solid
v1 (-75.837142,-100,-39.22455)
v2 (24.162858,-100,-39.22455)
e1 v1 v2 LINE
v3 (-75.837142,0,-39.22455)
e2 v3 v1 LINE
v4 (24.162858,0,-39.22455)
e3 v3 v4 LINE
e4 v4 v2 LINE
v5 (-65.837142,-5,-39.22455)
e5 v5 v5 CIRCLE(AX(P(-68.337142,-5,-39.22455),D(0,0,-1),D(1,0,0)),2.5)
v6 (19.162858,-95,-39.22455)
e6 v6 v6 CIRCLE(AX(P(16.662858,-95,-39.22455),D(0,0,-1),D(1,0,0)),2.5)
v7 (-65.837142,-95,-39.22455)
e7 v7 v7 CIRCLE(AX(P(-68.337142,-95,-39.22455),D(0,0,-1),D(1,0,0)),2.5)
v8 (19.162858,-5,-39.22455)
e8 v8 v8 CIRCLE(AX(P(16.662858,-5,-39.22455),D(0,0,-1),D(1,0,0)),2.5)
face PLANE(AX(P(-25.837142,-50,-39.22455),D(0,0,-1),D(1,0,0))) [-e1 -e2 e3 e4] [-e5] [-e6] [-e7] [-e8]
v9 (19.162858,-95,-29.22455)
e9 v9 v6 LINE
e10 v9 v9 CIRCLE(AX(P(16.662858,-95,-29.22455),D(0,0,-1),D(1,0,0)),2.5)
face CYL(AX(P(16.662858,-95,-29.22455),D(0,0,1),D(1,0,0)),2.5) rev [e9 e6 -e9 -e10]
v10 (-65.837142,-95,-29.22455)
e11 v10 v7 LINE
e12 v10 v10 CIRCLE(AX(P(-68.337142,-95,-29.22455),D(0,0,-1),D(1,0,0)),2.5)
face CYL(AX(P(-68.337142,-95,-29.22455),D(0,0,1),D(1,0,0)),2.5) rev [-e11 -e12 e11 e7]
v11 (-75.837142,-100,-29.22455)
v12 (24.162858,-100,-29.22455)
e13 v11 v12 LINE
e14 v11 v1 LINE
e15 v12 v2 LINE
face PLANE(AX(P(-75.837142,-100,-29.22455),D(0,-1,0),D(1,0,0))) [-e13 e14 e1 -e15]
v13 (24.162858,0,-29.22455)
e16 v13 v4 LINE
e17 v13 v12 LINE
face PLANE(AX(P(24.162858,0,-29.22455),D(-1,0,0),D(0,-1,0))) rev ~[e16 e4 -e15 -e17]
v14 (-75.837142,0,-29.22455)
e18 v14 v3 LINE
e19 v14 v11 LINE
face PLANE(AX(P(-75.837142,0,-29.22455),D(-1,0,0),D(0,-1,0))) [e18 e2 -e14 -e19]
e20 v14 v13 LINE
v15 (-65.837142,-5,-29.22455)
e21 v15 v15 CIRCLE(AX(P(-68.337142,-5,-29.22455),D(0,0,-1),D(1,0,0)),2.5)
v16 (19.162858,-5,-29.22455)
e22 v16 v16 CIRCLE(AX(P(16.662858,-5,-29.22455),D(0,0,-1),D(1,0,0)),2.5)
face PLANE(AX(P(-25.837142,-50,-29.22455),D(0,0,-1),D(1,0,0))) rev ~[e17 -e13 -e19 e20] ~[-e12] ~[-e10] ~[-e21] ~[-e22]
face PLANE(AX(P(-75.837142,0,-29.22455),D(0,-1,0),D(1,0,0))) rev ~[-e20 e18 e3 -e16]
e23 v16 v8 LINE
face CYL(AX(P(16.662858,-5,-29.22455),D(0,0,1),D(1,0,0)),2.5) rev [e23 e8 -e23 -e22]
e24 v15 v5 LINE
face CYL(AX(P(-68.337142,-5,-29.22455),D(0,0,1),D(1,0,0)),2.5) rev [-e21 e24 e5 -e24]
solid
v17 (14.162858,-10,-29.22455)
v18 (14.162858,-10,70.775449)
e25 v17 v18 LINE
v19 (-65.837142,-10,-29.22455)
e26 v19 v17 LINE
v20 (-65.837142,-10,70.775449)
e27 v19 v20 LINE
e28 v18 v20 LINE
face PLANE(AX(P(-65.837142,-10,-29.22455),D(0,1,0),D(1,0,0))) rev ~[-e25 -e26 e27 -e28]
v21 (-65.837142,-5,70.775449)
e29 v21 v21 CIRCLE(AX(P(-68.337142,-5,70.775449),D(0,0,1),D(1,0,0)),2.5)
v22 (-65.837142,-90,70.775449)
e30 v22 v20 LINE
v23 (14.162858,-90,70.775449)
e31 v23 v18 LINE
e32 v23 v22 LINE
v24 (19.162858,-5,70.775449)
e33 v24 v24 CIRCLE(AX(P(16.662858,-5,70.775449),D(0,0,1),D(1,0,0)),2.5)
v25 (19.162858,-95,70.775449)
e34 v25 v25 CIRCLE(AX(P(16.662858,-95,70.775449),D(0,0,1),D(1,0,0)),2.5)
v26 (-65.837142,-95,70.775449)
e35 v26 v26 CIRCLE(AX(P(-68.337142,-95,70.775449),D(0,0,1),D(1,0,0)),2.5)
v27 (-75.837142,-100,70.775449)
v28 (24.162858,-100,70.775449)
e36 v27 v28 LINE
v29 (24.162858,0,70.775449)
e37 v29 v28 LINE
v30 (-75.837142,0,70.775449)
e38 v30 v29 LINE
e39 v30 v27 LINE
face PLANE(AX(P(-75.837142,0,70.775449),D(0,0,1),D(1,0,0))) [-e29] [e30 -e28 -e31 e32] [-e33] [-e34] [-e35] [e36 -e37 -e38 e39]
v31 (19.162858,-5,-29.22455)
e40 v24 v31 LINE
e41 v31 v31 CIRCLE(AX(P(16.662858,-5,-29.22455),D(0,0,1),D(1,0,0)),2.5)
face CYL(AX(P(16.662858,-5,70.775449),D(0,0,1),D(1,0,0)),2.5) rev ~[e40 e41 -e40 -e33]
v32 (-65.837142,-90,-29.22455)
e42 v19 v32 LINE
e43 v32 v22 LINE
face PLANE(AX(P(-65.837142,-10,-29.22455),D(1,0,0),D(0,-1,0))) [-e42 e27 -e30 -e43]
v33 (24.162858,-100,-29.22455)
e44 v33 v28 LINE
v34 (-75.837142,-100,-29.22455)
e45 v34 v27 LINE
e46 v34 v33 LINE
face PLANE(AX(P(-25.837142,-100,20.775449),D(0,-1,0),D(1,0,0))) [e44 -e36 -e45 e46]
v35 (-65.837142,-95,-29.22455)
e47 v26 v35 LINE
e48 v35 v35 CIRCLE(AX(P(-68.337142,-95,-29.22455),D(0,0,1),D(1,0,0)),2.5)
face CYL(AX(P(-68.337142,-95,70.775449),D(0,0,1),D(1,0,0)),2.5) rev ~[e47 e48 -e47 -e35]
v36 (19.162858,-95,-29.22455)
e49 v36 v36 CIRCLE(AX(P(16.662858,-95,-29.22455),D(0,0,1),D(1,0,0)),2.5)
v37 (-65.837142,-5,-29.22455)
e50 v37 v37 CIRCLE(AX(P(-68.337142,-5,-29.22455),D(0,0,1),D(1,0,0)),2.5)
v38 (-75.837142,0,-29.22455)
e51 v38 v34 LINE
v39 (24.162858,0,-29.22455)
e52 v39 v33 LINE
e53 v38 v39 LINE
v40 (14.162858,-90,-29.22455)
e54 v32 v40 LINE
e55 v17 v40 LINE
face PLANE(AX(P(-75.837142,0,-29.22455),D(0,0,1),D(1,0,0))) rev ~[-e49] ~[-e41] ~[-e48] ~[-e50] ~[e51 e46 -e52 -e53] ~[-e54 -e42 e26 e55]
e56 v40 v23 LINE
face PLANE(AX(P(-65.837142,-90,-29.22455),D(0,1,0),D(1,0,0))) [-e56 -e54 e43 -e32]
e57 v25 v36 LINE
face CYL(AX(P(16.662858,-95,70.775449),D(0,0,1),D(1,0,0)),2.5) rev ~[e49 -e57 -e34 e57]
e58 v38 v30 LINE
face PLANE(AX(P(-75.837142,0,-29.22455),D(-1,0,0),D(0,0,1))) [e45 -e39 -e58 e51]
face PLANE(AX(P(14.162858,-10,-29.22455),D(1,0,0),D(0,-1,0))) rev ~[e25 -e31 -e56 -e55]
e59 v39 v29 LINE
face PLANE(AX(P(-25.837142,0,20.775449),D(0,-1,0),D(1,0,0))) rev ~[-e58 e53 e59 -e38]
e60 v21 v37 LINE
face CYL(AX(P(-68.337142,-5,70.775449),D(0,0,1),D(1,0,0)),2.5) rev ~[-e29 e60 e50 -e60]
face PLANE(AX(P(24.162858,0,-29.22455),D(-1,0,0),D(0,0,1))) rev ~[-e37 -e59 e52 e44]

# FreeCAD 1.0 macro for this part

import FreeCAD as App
import Part
import Sketcher

V = App.Vector

doc = App.newDocument("Part")
body = doc.addObject("PartDesign::Body", "Body")

sketch1 = body.newObject("Sketcher::SketchObject", "Sketch")
sketch1.AttachmentSupport = (doc.getObject("XZ_Plane"), [""])
sketch1.MapMode = "FlatFace"
sketch1.addGeometry(Part.LineSegment(V(-75.837142, 70.775449, 0), V(-75.837142, -29.22455, 0)), False)
sketch1.addGeometry(Part.LineSegment(V(-75.837142, -29.22455, 0), V(24.162858, -29.22455, 0)), False)
sketch1.addGeometry(Part.LineSegment(V(24.162858, -29.22455, 0), V(24.162858, 70.775449, 0)), False)
sketch1.addGeometry(Part.LineSegment(V(24.162858, 70.775449, 0), V(-75.837142, 70.775449, 0)), False)
sketch1.addConstraint(Sketcher.Constraint("Coincident", 0, 2, 1, 1))
sketch1.addConstraint(Sketcher.Constraint("Coincident", 1, 2, 2, 1))
sketch1.addConstraint(Sketcher.Constraint("Coincident", 2, 2, 3, 1))
sketch1.addConstraint(Sketcher.Constraint("Coincident", 3, 2, 0, 1))
sketch1.addConstraint(Sketcher.Constraint("Vertical", 0))
sketch1.addConstraint(Sketcher.Constraint("Horizontal", 1))
sketch1.addConstraint(Sketcher.Constraint("Vertical", 2))
sketch1.addConstraint(Sketcher.Constraint("Horizontal", 3))
sketch1.addConstraint(Sketcher.Constraint("Equal", 3, 0))
sketch1.addConstraint(Sketcher.Constraint("DistanceX", 1, 1, 1, 2, 100.0))
sketch1.addConstraint(Sketcher.Constraint("DistanceY", 0, 2, -1, 1, 29.22455))
sketch1.addConstraint(Sketcher.Constraint("DistanceX", 0, 2, -1, 1, 75.837142))
pad1 = body.newObject("PartDesign::Pad", "Pad")
pad1.Profile = sketch1
pad1.Length = 100

sketch2 = body.newObject("Sketcher::SketchObject", "Sketch001")
sketch2.AttachmentSupport = (doc.getObject("XY_Plane"), [""])
sketch2.MapMode = "FlatFace"
sketch2.AttachmentOffset = App.Placement(V(0, 0, -29.22455), App.Rotation())
sketch2.addGeometry(Part.LineSegment(V(-65.837142, -90, 0), V(-65.837142, -10, 0)), False)
sketch2.addGeometry(Part.LineSegment(V(-65.837142, -10, 0), V(14.162858, -10, 0)), False)
sketch2.addGeometry(Part.LineSegment(V(14.162858, -10, 0), V(14.162858, -90, 0)), False)
sketch2.addGeometry(Part.LineSegment(V(14.162858, -90, 0), V(-65.837142, -90, 0)), False)
sketch2.addConstraint(Sketcher.Constraint("Coincident", 0, 2, 1, 1))
sketch2.addConstraint(Sketcher.Constraint("Coincident", 1, 2, 2, 1))
sketch2.addConstraint(Sketcher.Constraint("Coincident", 2, 2, 3, 1))
sketch2.addConstraint(Sketcher.Constraint("Coincident", 3, 2, 0, 1))
sketch2.addConstraint(Sketcher.Constraint("Vertical", 0))
sketch2.addConstraint(Sketcher.Constraint("Horizontal", 1))
sketch2.addConstraint(Sketcher.Constraint("Vertical", 2))
sketch2.addConstraint(Sketcher.Constraint("Horizontal", 3))
sketch2.addConstraint(Sketcher.Constraint("Equal", 3, 0))
sketch2.addConstraint(Sketcher.Constraint("DistanceX", 1, 1, 1, 2, 80.0))
sketch2.addConstraint(Sketcher.Constraint("DistanceY", 0, 2, -1, 1, 10.0))
sketch2.addConstraint(Sketcher.Constraint("DistanceX", 0, 2, -1, 1, 65.837142))
pocket1 = body.newObject("PartDesign::Pocket", "Pocket")
pocket1.Profile = sketch2
pocket1.Type = "ThroughAll"
pocket1.Reversed = True

sketch3 = body.newObject("Sketcher::SketchObject", "Sketch002")
sketch3.AttachmentSupport = (doc.getObject("XY_Plane"), [""])
sketch3.MapMode = "FlatFace"
sketch3.AttachmentOffset = App.Placement(V(0, 0, 70.775449), App.Rotation())
sketch3.addGeometry(Part.Circle(V(-68.337142, -95, 0), V(0, 0, 1), 2.5), False)
sketch3.addGeometry(Part.Circle(V(-68.337142, -5, 0), V(0, 0, 1), 2.5), False)
sketch3.addGeometry(Part.Circle(V(16.662858, -5, 0), V(0, 0, 1), 2.5), False)
sketch3.addGeometry(Part.Circle(V(16.662858, -95, 0), V(0, 0, 1), 2.5), False)
sketch3.addConstraint(Sketcher.Constraint("Equal", 0, 1))
sketch3.addConstraint(Sketcher.Constraint("Equal", 1, 2))
sketch3.addConstraint(Sketcher.Constraint("Equal", 2, 3))
sketch3.addConstraint(Sketcher.Constraint("Horizontal", 1, 3, 2, 3))
sketch3.addConstraint(Sketcher.Constraint("Horizontal", 0, 3, 3, 3))
sketch3.addConstraint(Sketcher.Constraint("Vertical", 0, 3, 1, 3))
sketch3.addConstraint(Sketcher.Constraint("Vertical", 2, 3, 3, 3))
sketch3.addConstraint(Sketcher.Constraint("Diameter", 0, 5.0))
sketch3.addConstraint(Sketcher.Constraint("DistanceY", 0, 3, -1, 1, 95.0))
sketch3.addConstraint(Sketcher.Constraint("DistanceY", 1, 3, -1, 1, 5.0))
sketch3.addConstraint(Sketcher.Constraint("DistanceX", 1, 3, 2, 3, 85.0))
sketch3.addConstraint(Sketcher.Constraint("DistanceX", 0, 3, -1, 1, 68.337142))
pocket2 = body.newObject("PartDesign::Pocket", "Pocket001")
pocket2.Profile = sketch3
pocket2.Type = "ThroughAll"
body2 = doc.addObject("PartDesign::Body", "Body001")

sketch4 = body2.newObject("Sketcher::SketchObject", "Sketch003")
sketch4.AttachmentSupport = (doc.getObject("XY_Plane001"), [""])
sketch4.MapMode = "FlatFace"
sketch4.AttachmentOffset = App.Placement(V(0, 0, -29.22455), App.Rotation())
sketch4.addGeometry(Part.LineSegment(V(-75.837142, -100, 0), V(-75.837142, 0, 0)), False)
sketch4.addGeometry(Part.LineSegment(V(-75.837142, 0, 0), V(24.162858, 0, 0)), False)
sketch4.addGeometry(Part.LineSegment(V(24.162858, 0, 0), V(24.162858, -100, 0)), False)
sketch4.addGeometry(Part.LineSegment(V(24.162858, -100, 0), V(-75.837142, -100, 0)), False)
sketch4.addGeometry(Part.Circle(V(-68.337142, -5, 0), V(0, 0, 1), 2.5), False)
sketch4.addGeometry(Part.Circle(V(16.662858, -5, 0), V(0, 0, 1), 2.5), False)
sketch4.addGeometry(Part.Circle(V(-68.337142, -95, 0), V(0, 0, 1), 2.5), False)
sketch4.addGeometry(Part.Circle(V(16.662858, -95, 0), V(0, 0, 1), 2.5), False)
sketch4.addConstraint(Sketcher.Constraint("Coincident", 0, 2, 1, 1))
sketch4.addConstraint(Sketcher.Constraint("Coincident", 1, 2, 2, 1))
sketch4.addConstraint(Sketcher.Constraint("Coincident", 2, 2, 3, 1))
sketch4.addConstraint(Sketcher.Constraint("Coincident", 3, 2, 0, 1))
sketch4.addConstraint(Sketcher.Constraint("Vertical", 0))
sketch4.addConstraint(Sketcher.Constraint("Horizontal", 1))
sketch4.addConstraint(Sketcher.Constraint("Vertical", 2))
sketch4.addConstraint(Sketcher.Constraint("Horizontal", 3))
sketch4.addConstraint(Sketcher.Constraint("Equal", 4, 5))
sketch4.addConstraint(Sketcher.Constraint("Equal", 5, 6))
sketch4.addConstraint(Sketcher.Constraint("Equal", 6, 7))
sketch4.addConstraint(Sketcher.Constraint("PointOnObject", 0, 2, -1))
sketch4.addConstraint(Sketcher.Constraint("Horizontal", 4, 3, 5, 3))
sketch4.addConstraint(Sketcher.Constraint("Horizontal", 6, 3, 7, 3))
sketch4.addConstraint(Sketcher.Constraint("Vertical", 4, 3, 6, 3))
sketch4.addConstraint(Sketcher.Constraint("Vertical", 5, 3, 7, 3))
sketch4.addConstraint(Sketcher.Constraint("Equal", 3, 0))
sketch4.addConstraint(Sketcher.Constraint("Diameter", 4, 5.0))
sketch4.addConstraint(Sketcher.Constraint("DistanceX", 1, 1, 1, 2, 100.0))
sketch4.addConstraint(Sketcher.Constraint("DistanceY", 4, 3, -1, 1, 5.0))
sketch4.addConstraint(Sketcher.Constraint("DistanceY", 6, 3, -1, 1, 95.0))
sketch4.addConstraint(Sketcher.Constraint("DistanceX", 4, 3, 5, 3, 85.0))
sketch4.addConstraint(Sketcher.Constraint("DistanceX", 0, 2, 4, 3, 7.5))
sketch4.addConstraint(Sketcher.Constraint("DistanceX", 4, 3, -1, 1, 68.337142))
pad2 = body2.newObject("PartDesign::Pad", "Pad001")
pad2.Profile = sketch4
pad2.Length = 10
pad2.Reversed = True

doc.recompute()
